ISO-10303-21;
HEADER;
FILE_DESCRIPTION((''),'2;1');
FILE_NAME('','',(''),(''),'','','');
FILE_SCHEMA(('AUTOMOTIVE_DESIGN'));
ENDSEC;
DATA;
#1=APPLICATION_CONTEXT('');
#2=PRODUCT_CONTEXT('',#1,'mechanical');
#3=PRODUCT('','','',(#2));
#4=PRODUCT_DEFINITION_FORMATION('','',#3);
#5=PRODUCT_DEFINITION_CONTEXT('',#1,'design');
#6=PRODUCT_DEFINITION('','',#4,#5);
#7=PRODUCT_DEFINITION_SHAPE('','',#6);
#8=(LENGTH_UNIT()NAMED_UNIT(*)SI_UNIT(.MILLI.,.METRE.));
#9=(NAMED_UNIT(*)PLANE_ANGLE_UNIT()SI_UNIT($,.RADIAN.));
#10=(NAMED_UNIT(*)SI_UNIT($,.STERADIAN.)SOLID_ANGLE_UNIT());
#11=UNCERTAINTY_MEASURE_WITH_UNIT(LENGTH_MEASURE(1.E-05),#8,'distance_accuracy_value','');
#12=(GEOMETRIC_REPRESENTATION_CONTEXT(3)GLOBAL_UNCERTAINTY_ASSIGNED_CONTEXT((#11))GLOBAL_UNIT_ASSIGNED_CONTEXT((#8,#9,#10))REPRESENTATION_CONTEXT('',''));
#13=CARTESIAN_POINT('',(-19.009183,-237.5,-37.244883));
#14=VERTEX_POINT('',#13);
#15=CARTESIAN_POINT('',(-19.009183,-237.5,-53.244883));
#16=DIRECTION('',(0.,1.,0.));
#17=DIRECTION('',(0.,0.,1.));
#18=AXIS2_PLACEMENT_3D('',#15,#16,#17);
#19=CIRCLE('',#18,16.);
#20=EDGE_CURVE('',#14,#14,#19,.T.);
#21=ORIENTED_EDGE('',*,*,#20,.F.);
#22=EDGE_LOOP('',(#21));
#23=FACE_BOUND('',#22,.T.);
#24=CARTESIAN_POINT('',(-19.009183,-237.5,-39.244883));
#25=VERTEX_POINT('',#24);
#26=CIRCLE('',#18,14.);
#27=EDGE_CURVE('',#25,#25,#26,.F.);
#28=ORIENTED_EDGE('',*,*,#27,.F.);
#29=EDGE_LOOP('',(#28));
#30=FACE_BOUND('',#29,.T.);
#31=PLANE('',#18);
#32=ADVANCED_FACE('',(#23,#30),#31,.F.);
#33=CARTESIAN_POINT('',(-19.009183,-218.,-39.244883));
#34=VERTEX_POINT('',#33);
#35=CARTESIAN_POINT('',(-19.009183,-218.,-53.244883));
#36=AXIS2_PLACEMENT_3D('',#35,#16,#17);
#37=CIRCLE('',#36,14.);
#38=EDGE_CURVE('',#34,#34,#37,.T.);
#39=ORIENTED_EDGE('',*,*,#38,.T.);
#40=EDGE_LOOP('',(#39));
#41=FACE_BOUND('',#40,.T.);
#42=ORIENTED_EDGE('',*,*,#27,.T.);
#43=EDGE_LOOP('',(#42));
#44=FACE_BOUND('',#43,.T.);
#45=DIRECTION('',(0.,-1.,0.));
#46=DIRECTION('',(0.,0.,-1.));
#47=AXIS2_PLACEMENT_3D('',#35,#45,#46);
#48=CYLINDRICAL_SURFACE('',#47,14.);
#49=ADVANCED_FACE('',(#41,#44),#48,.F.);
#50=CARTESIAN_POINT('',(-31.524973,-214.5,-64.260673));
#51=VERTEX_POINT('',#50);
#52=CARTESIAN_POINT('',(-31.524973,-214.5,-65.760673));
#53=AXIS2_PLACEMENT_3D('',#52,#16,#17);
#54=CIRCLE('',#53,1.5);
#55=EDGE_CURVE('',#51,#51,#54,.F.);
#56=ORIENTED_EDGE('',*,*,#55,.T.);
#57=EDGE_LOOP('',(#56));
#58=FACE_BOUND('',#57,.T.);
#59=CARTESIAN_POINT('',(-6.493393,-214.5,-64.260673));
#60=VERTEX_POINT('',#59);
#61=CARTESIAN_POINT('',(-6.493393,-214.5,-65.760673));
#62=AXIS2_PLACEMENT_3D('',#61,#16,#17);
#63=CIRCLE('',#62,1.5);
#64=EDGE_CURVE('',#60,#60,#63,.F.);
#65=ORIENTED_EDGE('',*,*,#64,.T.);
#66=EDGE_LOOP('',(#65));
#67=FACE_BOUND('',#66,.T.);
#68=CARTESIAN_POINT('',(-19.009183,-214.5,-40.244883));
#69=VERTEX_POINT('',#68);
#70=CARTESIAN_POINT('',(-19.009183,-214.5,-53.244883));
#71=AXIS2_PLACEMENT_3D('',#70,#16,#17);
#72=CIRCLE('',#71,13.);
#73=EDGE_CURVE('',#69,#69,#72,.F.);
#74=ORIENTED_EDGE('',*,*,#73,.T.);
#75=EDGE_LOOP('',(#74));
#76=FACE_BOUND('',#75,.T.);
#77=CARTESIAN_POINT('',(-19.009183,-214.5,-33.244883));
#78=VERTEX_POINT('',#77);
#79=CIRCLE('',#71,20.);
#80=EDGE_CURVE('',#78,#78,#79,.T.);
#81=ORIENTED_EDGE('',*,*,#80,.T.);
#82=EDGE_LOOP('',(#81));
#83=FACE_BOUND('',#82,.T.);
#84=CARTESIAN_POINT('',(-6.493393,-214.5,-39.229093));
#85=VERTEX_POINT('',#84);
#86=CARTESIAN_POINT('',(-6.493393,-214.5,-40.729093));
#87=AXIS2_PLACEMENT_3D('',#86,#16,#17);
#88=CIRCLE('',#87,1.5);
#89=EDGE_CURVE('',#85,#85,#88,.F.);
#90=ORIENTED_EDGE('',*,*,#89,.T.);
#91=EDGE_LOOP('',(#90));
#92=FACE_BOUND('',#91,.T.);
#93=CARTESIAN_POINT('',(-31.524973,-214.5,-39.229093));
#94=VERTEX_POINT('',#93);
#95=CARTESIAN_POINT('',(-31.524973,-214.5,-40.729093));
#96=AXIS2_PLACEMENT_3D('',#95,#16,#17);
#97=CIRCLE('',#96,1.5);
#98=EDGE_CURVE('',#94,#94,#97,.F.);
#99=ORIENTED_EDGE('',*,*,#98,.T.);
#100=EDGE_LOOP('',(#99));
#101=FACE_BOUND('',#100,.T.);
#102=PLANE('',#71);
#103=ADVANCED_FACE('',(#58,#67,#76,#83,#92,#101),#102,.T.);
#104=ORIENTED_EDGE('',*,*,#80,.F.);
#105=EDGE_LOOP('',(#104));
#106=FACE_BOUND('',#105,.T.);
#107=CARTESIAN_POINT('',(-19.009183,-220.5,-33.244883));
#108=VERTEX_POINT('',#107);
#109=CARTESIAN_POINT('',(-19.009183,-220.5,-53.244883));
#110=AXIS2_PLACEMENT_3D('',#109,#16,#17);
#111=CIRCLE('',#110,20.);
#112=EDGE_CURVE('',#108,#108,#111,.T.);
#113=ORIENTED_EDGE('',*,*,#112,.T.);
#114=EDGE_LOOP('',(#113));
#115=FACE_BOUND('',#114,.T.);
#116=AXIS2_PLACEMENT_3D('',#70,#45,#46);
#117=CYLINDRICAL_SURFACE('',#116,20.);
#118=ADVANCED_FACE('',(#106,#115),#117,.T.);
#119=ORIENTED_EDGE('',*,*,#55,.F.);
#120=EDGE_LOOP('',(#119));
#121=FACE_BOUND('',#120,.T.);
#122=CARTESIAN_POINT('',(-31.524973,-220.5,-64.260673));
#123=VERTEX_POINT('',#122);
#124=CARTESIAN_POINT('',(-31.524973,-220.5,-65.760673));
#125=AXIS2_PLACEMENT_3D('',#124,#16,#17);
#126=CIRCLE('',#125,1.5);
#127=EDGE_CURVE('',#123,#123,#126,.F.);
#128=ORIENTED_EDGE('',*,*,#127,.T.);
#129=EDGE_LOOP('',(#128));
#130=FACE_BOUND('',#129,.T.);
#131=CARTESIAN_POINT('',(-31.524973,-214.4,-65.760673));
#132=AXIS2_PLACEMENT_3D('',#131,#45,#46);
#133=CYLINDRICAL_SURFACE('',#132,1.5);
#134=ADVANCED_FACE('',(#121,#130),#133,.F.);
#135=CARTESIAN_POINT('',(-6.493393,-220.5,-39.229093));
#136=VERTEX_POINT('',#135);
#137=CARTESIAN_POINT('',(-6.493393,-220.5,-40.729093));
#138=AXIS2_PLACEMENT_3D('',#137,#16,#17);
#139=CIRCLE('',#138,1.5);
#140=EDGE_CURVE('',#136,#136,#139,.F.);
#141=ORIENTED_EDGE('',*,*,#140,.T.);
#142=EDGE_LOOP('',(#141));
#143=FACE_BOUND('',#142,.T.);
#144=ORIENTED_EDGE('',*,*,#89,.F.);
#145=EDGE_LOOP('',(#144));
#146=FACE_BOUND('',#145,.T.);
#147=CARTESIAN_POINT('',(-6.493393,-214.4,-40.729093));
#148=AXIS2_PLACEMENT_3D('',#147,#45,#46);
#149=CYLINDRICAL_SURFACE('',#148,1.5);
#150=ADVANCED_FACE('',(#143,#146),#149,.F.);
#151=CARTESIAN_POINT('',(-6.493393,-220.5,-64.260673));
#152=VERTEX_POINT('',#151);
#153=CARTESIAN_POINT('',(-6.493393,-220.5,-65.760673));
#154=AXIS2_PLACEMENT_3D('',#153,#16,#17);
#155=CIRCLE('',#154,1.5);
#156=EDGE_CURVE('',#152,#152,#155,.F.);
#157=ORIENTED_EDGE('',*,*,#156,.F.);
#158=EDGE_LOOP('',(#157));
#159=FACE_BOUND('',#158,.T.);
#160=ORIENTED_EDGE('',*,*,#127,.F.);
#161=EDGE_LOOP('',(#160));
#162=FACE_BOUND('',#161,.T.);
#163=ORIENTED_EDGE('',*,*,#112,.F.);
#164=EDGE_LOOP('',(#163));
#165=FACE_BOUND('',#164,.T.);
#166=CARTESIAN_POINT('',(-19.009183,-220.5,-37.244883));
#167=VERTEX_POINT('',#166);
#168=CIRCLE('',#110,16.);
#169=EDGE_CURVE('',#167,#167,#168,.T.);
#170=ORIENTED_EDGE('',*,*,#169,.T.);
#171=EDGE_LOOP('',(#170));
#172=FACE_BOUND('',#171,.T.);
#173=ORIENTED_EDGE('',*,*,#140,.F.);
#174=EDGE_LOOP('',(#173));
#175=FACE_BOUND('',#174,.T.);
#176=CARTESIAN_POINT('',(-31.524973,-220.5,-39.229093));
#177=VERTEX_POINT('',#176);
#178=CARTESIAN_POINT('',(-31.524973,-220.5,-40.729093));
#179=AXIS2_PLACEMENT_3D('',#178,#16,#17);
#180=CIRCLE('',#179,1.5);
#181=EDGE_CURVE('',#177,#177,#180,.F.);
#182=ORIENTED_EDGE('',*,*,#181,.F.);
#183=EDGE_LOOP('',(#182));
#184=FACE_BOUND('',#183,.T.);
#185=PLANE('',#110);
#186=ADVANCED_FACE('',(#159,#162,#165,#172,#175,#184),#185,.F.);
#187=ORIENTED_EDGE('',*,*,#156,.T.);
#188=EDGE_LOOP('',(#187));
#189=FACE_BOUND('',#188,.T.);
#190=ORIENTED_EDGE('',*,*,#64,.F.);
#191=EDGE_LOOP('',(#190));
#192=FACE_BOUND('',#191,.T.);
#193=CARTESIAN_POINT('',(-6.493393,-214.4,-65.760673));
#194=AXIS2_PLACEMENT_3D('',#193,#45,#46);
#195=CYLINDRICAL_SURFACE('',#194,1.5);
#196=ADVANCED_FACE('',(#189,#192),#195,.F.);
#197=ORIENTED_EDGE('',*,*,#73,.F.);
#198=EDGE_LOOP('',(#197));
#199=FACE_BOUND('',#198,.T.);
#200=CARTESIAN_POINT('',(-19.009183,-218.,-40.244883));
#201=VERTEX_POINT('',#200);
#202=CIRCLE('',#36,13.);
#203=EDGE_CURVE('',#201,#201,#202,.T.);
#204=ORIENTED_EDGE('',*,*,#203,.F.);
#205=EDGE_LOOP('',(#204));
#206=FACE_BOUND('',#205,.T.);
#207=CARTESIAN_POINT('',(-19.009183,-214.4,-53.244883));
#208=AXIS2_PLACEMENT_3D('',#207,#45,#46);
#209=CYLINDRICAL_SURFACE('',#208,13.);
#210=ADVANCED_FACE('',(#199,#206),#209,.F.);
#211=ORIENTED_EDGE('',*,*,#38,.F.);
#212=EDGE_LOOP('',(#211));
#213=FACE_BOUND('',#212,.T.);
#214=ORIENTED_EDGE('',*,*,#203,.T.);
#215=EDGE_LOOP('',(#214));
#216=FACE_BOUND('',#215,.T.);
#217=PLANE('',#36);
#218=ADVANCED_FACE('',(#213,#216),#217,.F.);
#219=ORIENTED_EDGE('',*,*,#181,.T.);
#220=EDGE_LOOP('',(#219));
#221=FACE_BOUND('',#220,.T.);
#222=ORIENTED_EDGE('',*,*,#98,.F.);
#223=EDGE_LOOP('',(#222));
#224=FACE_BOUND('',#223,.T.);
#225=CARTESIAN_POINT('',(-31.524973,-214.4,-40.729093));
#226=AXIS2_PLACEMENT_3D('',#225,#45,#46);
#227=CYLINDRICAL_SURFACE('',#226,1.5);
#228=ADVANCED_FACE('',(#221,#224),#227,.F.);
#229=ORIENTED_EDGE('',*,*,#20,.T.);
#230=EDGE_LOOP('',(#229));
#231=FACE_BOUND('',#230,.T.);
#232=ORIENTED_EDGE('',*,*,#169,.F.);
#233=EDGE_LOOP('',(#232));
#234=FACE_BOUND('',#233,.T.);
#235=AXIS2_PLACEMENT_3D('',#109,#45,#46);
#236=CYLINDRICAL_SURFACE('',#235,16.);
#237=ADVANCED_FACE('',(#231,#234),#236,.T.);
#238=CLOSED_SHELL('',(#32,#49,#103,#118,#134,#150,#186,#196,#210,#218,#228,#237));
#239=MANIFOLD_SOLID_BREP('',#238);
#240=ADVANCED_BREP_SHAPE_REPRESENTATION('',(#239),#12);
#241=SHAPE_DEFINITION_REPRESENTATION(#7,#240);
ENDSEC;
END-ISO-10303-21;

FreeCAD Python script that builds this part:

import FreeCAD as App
import Part
import Sketcher

doc = App.newDocument("Part")
body = doc.addObject("PartDesign::Body", "Body")

# Sketch on XZ plane
sketch1 = body.newObject("Sketcher::SketchObject", "Sketch")
sketch1.AttachmentSupport = (doc.getObject("XZ_Plane"), [""])
sketch1.MapMode = "FlatFace"
sketch1.AttachmentOffset = App.Placement(App.Vector(0, 0, 237.5), App.Rotation())
sketch1.addGeometry(Part.Circle(App.Vector(-19.009183, -53.244883, 0), App.Vector(0, 0, 1), 16), False)
sketch1.addConstraint([
    Sketcher.Constraint("Diameter", 0, 32.0),
    Sketcher.Constraint("DistanceX", 0, 3, -1, 1, 19.009183),
    Sketcher.Constraint("DistanceY", 0, 3, -1, 1, 53.244883),
])
pad1 = body.newObject("PartDesign::Pad", "Pad")
pad1.Profile = sketch1
pad1.Length = 17
pad1.Reversed = True

# Sketch on XZ plane
sketch2 = body.newObject("Sketcher::SketchObject", "Sketch001")
sketch2.AttachmentSupport = (doc.getObject("XZ_Plane"), [""])
sketch2.MapMode = "FlatFace"
sketch2.AttachmentOffset = App.Placement(App.Vector(0, 0, 220.5), App.Rotation())
sketch2.addGeometry(Part.Circle(App.Vector(-19.009183, -53.244883, 0), App.Vector(0, 0, 1), 20), False)
sketch2.addConstraint([
    Sketcher.Constraint("Diameter", 0, 40.0),
    Sketcher.Constraint("DistanceX", 0, 3, -1, 1, 19.009183),
    Sketcher.Constraint("DistanceY", 0, 3, -1, 1, 53.244883),
])
pad2 = body.newObject("PartDesign::Pad", "Pad001")
pad2.Profile = sketch2
pad2.Length = 6
pad2.Reversed = True

# Sketch on XZ plane
sketch3 = body.newObject("Sketcher::SketchObject", "Sketch002")
sketch3.AttachmentSupport = (doc.getObject("XZ_Plane"), [""])
sketch3.MapMode = "FlatFace"
sketch3.AttachmentOffset = App.Placement(App.Vector(0, 0, 237.6), App.Rotation())
sketch3.addGeometry(Part.Circle(App.Vector(-19.009183, -53.244883, 0), App.Vector(0, 0, 1), 14), False)
sketch3.addConstraint([
    Sketcher.Constraint("Diameter", 0, 28.0),
    Sketcher.Constraint("DistanceX", 0, 3, -1, 1, 19.009183),
    Sketcher.Constraint("DistanceY", 0, 3, -1, 1, 53.244883),
])
pocket1 = body.newObject("PartDesign::Pocket", "Pocket")
pocket1.Profile = sketch3
pocket1.Length = 19.6

# Sketch on XZ plane
sketch4 = body.newObject("Sketcher::SketchObject", "Sketch003")
sketch4.AttachmentSupport = (doc.getObject("XZ_Plane"), [""])
sketch4.MapMode = "FlatFace"
sketch4.AttachmentOffset = App.Placement(App.Vector(0, 0, 218), App.Rotation())
sketch4.addGeometry(Part.Circle(App.Vector(-19.009183, -53.244883, 0), App.Vector(0, 0, 1), 13), False)
sketch4.addConstraint([
    Sketcher.Constraint("Diameter", 0, 26.0),
    Sketcher.Constraint("DistanceX", 0, 3, -1, 1, 19.009183),
    Sketcher.Constraint("DistanceY", 0, 3, -1, 1, 53.244883),
])
pocket2 = body.newObject("PartDesign::Pocket", "Pocket001")
pocket2.Profile = sketch4
pocket2.Length = 3.6

# Sketch on XZ plane
sketch5 = body.newObject("Sketcher::SketchObject", "Sketch004")
sketch5.AttachmentSupport = (doc.getObject("XZ_Plane"), [""])
sketch5.MapMode = "FlatFace"
sketch5.AttachmentOffset = App.Placement(App.Vector(0, 0, 220.6), App.Rotation())
sketch5.addGeometry([
    Part.Circle(App.Vector(-6.493393, -40.729093, 0), App.Vector(0, 0, 1), 1.5),
    Part.Circle(App.Vector(-31.524973, -40.729093, 0), App.Vector(0, 0, 1), 1.5),
    Part.Circle(App.Vector(-31.524973, -65.760673, 0), App.Vector(0, 0, 1), 1.5),
    Part.Circle(App.Vector(-6.493393, -65.760673, 0), App.Vector(0, 0, 1), 1.5),
], False)
sketch5.addConstraint([
    Sketcher.Constraint("Equal", 0, 1),
    Sketcher.Constraint("Equal", 1, 2),
    Sketcher.Constraint("Equal", 2, 3),
    Sketcher.Constraint("Horizontal", 0, 3, 1, 3),
    Sketcher.Constraint("Horizontal", 2, 3, 3, 3),
    Sketcher.Constraint("Vertical", 1, 3, 2, 3),
    Sketcher.Constraint("Vertical", 0, 3, 3, 3),
    Sketcher.Constraint("Diameter", 0, 3.0),
    Sketcher.Constraint("DistanceX", 1, 3, 0, 3, 25.03158),
    Sketcher.Constraint("DistanceY", 2, 3, 1, 3, 25.03158),
    Sketcher.Constraint("DistanceX", 0, 3, -1, 1, 6.493393),
    Sketcher.Constraint("DistanceY", 0, 3, -1, 1, 40.729093),
])
pocket3 = body.newObject("PartDesign::Pocket", "Pocket002")
pocket3.Profile = sketch5
pocket3.Length = 6.2

doc.recompute()
